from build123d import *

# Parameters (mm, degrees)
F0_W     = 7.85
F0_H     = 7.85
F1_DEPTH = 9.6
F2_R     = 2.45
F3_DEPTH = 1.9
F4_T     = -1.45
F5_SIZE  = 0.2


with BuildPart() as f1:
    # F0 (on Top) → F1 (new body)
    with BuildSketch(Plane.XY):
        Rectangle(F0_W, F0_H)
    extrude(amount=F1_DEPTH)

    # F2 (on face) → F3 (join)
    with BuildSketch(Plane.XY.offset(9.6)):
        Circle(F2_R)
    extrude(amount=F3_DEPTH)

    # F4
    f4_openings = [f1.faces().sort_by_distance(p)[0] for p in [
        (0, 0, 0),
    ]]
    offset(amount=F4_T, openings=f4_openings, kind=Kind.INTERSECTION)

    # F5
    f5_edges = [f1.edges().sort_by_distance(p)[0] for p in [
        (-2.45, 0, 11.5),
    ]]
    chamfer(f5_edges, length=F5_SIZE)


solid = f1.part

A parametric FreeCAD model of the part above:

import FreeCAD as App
import Part
import Sketcher
from FreeCAD import Vector
Q = App.Units.Quantity


def edges_at(feature, points):
    """Names of the edges that pass closest to the given points."""
    edges = feature.Shape.Edges
    near = lambda p: min(range(len(edges)), key=lambda i: edges[i].distToShape(Part.Vertex(*p))[0])
    return sorted({f"Edge{near(p) + 1}" for p in points})


def faces_at(feature, points):
    """Names of the faces that lie closest to the given points."""
    faces = feature.Shape.Faces
    near = lambda p: min(range(len(faces)), key=lambda i: faces[i].distToShape(Part.Vertex(*p))[0])
    return sorted({f"Face{near(p) + 1}" for p in points})

doc = App.newDocument("Part")
body = doc.addObject("PartDesign::Body", "Body")

# Sketch on XY plane
sketch1 = body.newObject("Sketcher::SketchObject", "Sketch")
sketch1.AttachmentSupport = (doc.getObject("XY_Plane"), [""])
sketch1.MapMode = "FlatFace"
sketch1.addGeometry([
    Part.LineSegment(Vector(-4, 4, 0), Vector(-4, -4, 0)),
    Part.LineSegment(Vector(-4, -4, 0), Vector(4, -4, 0)),
    Part.LineSegment(Vector(4, -4, 0), Vector(4, 4, 0)),
    Part.LineSegment(Vector(4, 4, 0), Vector(-4, 4, 0)),
], False)
sketch1.addConstraint([
    Sketcher.Constraint("Coincident", 0, 2, 1, 1),
    Sketcher.Constraint("Coincident", 1, 2, 2, 1),
    Sketcher.Constraint("Coincident", 2, 2, 3, 1),
    Sketcher.Constraint("Coincident", 3, 2, 0, 1),
    Sketcher.Constraint("Vertical", 0),
    Sketcher.Constraint("Horizontal", 1),
    Sketcher.Constraint("Vertical", 2),
    Sketcher.Constraint("Horizontal", 3),
    Sketcher.Constraint("Symmetric", 0, 2, 2, 2, -1, 1),
    Sketcher.Constraint("Equal", 3, 0),
    Sketcher.Constraint("DistanceX", 1, 1, 1, 2, Q("7.85 mm")),
])
pad1 = body.newObject("PartDesign::Pad", "Pad")
pad1.Profile = sketch1
pad1.Length = 9.6

# Sketch on XY plane
sketch2 = body.newObject("Sketcher::SketchObject", "Sketch001")
sketch2.AttachmentSupport = (doc.getObject("XY_Plane"), [""])
sketch2.MapMode = "FlatFace"
sketch2.AttachmentOffset = App.Placement(Vector(0, 0, 9.6), App.Rotation())
sketch2.addGeometry(Part.Circle(Vector(0, 0, 0), Vector(0, 0, 1), 2.5), False)
sketch2.addConstraint([
    Sketcher.Constraint("Coincident", 0, 3, -1, 1),
    Sketcher.Constraint("Diameter", 0, Q("4.9 mm")),
])
pad2 = body.newObject("PartDesign::Pad", "Pad001")
pad2.Profile = sketch2
pad2.Length = 1.9
doc.recompute()

thickness = body.newObject("PartDesign::Thickness", "Thickness")
thickness.Base = (pad2, faces_at(pad2, [(0, 0, 0)]))
thickness.Value = 1.45
thickness.Reversed = True
thickness.Join = "Intersection"
doc.recompute()

chamfer = body.newObject("PartDesign::Chamfer", "Chamfer")
chamfer.Base = (thickness, edges_at(thickness, [(-2.45, 0, 11.5)]))
chamfer.Size = 0.2

doc.recompute()
